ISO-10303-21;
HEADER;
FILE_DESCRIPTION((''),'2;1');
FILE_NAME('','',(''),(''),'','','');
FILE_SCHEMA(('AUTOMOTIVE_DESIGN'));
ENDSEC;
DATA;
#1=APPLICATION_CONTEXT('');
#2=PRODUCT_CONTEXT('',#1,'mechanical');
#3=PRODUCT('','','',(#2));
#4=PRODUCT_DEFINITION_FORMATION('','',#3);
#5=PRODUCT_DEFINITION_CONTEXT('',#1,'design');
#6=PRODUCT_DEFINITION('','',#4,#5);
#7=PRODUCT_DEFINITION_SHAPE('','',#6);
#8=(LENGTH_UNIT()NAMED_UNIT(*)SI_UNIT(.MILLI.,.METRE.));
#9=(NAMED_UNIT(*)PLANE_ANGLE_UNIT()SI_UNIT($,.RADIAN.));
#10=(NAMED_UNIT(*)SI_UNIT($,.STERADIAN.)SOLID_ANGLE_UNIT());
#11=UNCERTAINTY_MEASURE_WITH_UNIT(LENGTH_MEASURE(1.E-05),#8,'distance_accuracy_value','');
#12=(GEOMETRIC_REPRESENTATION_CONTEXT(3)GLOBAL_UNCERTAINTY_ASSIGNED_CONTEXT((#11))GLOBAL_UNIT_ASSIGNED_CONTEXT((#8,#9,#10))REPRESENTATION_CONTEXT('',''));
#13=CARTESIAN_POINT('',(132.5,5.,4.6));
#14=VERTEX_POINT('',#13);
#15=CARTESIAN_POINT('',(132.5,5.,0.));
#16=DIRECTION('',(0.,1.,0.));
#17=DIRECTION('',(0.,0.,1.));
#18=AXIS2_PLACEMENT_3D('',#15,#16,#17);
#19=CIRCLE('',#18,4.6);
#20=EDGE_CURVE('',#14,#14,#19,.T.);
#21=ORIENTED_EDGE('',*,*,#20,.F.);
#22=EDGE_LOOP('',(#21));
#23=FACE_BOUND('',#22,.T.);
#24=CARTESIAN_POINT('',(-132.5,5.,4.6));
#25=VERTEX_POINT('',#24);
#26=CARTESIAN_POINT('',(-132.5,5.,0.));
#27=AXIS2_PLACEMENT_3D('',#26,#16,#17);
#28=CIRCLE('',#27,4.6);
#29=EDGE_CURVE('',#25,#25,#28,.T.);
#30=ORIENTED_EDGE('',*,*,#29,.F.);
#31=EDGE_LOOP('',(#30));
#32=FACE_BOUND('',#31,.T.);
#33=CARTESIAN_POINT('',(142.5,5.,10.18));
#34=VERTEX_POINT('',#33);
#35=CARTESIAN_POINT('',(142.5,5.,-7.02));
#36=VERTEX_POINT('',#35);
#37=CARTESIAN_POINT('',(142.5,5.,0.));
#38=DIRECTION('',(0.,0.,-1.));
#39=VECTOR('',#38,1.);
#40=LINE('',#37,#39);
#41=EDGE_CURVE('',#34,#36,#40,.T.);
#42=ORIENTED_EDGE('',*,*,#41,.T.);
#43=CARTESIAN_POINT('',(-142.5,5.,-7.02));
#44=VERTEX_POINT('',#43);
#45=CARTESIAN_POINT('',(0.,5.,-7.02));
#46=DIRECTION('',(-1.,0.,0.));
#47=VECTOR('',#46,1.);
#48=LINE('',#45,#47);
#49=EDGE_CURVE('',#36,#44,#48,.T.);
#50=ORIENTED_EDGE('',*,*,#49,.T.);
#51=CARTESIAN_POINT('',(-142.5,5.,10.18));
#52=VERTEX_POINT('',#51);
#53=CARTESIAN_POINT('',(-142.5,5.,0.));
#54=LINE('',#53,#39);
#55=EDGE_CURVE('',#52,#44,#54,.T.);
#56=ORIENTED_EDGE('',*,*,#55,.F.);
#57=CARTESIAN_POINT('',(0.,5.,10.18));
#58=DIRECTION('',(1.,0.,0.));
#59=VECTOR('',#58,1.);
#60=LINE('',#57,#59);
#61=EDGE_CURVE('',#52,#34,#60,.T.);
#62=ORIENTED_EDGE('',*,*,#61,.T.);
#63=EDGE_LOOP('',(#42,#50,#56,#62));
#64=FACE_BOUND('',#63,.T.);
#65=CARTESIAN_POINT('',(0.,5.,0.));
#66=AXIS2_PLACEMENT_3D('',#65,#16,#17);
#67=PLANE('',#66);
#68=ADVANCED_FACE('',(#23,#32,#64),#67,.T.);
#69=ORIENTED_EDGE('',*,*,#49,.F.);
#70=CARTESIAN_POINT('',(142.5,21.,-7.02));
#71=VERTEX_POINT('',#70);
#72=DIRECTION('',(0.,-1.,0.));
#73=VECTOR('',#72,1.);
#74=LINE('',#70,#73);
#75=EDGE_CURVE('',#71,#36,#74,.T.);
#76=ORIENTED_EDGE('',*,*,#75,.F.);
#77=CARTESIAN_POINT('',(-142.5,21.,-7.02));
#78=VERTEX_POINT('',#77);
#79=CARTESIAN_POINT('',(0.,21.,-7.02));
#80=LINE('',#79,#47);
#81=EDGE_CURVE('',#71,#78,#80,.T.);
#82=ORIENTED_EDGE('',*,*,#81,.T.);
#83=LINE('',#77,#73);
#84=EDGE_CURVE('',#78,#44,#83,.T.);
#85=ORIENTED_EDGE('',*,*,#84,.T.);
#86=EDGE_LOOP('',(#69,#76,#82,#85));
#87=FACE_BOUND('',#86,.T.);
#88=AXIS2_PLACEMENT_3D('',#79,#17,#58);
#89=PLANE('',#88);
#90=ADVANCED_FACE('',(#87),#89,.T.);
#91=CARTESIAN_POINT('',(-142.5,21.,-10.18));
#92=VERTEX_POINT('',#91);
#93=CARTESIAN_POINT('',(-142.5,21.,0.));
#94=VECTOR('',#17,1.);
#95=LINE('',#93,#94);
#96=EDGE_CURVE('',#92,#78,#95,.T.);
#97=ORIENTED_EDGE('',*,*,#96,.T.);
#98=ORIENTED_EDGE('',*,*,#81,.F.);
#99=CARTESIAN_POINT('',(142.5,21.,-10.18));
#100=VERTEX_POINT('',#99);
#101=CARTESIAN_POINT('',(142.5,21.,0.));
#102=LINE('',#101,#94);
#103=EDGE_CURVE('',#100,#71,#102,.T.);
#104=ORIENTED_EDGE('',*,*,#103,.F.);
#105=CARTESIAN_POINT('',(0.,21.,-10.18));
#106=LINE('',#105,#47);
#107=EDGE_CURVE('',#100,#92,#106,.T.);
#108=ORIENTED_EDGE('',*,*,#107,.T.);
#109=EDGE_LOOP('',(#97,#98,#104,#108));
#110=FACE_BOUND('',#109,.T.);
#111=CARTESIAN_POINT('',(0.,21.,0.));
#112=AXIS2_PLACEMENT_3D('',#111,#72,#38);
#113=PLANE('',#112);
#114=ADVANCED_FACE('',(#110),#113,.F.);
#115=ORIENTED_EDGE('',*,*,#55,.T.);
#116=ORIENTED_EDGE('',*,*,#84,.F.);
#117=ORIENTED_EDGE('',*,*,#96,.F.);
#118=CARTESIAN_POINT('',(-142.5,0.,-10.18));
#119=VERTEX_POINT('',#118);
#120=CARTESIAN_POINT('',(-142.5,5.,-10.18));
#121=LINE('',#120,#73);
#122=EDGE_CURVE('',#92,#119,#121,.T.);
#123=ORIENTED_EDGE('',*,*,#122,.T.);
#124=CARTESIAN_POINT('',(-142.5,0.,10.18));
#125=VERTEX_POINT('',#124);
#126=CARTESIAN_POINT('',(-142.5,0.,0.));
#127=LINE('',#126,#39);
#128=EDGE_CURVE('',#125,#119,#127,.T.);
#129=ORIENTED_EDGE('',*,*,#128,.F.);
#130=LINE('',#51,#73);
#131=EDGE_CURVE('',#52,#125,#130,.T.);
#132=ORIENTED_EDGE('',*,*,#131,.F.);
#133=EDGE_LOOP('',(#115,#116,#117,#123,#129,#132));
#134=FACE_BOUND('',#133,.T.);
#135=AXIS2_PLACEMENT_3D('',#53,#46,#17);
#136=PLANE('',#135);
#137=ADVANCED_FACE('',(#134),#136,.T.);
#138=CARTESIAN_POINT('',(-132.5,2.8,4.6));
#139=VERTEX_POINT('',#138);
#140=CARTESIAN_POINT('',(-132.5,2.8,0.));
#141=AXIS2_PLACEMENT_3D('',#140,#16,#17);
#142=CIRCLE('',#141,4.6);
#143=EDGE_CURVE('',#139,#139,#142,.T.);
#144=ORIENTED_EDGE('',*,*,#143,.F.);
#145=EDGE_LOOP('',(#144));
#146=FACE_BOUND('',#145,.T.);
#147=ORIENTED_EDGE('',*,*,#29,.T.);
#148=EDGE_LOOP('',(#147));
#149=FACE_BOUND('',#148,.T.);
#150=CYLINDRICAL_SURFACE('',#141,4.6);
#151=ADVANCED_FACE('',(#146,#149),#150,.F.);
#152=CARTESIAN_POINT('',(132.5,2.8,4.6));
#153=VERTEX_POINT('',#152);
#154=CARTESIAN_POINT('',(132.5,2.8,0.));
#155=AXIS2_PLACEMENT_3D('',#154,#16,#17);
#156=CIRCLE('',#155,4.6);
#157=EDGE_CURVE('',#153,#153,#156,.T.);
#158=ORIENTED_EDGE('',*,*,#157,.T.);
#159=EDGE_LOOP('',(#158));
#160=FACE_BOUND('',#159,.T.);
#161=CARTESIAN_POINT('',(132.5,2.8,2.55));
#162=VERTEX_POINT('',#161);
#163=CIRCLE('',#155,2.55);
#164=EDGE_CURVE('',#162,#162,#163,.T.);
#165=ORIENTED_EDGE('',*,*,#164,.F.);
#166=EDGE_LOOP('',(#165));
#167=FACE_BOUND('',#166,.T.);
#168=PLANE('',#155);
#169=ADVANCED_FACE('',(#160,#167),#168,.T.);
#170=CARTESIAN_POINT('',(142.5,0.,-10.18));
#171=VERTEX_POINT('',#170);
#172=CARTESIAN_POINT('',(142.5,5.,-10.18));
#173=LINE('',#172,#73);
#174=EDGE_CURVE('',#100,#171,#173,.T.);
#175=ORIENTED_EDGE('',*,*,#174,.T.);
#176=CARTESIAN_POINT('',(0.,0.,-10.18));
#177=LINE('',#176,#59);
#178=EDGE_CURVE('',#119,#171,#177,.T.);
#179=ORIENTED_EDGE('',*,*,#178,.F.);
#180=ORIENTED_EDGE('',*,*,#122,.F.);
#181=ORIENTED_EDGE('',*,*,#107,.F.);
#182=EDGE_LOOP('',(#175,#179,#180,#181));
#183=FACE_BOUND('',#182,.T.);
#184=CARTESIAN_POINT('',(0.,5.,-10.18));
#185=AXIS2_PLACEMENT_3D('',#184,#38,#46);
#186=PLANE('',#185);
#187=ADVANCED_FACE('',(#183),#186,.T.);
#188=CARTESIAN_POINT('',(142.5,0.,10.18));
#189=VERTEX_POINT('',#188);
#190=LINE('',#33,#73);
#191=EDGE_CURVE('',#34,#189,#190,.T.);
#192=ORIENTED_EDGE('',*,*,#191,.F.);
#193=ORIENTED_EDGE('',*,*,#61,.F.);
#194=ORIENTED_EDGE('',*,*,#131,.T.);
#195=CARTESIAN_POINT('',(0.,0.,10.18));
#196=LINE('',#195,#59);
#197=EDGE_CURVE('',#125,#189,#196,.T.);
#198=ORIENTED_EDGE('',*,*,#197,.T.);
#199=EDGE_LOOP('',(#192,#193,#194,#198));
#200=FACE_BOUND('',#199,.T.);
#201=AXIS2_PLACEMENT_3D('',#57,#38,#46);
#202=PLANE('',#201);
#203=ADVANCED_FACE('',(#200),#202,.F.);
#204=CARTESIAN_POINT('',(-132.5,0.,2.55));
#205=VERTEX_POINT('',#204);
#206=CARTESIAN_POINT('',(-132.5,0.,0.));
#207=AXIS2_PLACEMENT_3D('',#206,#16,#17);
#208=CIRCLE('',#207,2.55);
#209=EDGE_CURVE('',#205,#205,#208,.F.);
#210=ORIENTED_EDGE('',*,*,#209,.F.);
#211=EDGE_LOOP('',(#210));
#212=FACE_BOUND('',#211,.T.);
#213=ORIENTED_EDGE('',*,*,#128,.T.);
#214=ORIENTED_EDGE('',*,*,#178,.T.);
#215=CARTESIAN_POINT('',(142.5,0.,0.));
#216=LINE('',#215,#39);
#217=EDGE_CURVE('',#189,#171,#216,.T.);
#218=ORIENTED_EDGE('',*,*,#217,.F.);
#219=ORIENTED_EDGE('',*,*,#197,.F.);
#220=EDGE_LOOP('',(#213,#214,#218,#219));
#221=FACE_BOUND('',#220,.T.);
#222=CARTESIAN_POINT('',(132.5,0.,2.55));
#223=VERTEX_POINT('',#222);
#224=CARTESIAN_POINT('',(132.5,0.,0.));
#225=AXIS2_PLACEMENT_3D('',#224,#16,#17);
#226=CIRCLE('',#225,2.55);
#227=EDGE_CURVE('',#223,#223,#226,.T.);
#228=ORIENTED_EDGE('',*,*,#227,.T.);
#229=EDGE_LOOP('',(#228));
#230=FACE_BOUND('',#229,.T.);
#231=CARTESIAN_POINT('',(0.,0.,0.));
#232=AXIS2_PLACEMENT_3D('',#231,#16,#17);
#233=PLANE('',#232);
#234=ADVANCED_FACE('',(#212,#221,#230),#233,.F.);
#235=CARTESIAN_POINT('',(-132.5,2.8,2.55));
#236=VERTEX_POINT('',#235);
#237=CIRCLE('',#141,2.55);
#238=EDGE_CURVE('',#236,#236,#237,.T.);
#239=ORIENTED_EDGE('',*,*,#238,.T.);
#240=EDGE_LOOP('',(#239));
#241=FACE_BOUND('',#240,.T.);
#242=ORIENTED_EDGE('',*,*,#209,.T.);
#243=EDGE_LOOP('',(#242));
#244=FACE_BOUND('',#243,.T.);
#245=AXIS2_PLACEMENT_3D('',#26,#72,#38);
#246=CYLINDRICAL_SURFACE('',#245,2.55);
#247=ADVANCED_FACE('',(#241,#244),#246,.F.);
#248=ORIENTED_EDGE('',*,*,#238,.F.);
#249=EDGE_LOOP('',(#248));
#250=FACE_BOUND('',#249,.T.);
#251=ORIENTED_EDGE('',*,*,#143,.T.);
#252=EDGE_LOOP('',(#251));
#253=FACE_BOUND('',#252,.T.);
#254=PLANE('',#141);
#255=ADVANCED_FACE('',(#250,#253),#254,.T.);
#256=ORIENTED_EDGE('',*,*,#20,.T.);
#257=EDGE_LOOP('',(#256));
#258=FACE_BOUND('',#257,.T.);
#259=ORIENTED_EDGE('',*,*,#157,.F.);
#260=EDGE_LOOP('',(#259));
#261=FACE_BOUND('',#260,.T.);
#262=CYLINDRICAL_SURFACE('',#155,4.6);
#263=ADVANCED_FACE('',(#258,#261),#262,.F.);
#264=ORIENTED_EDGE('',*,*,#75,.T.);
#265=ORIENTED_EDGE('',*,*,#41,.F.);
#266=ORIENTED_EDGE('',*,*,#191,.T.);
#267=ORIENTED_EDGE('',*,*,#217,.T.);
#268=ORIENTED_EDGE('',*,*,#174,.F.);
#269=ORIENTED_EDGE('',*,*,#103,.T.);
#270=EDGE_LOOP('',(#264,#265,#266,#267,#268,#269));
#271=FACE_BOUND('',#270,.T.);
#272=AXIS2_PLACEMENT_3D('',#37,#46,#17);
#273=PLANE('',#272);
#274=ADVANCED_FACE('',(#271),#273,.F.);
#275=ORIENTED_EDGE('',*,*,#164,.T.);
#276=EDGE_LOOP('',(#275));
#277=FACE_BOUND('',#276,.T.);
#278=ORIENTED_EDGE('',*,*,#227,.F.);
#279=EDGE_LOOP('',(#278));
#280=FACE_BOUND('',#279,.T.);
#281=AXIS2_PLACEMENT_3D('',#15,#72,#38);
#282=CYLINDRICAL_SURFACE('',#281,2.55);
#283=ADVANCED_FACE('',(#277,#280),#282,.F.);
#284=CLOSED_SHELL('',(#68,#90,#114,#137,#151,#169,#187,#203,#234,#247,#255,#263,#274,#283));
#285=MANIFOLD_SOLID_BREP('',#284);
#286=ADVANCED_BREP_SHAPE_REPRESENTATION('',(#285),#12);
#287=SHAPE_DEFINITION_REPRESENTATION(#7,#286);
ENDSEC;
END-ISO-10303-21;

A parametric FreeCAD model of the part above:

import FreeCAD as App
import Part
import Sketcher

doc = App.newDocument("Part")
params = doc.addObject("Spreadsheet::Sheet", "Params")
for row, (alias, value) in enumerate([
    ("sketch1_diameter", "5.1 mm"),
    ("sketch1_width", "285 mm"),
    ("sketch1_height", "20.36 mm"),
    ("pad1_length", "5 mm"),
    ("sketch2_width", "285 mm"),
    ("sketch2_height", "3.16 mm"),
    ("pad2_length", "16 mm"),
    ("sketch3_diameter", "9.2 mm"),
    ("sketch3_diameter2", "5.1 mm"),
    ("pocket1_length", "2.2 mm"),
], start=1):
    params.set(f"A{row}", alias)
    params.set(f"B{row}", "=" + value)
    params.setAlias(f"B{row}", alias)

body = doc.addObject("PartDesign::Body", "Body")

sketch1 = body.newObject("Sketcher::SketchObject", "Sketch")
sketch1.AttachmentSupport = (doc.getObject("XZ_Plane"), [""])
sketch1.MapMode = "FlatFace"
sketch1.addGeometry([
    Part.LineSegment(App.Vector(-142.5, 10.2, 0), App.Vector(142.5, 10.2, 0)),
    Part.LineSegment(App.Vector(142.5, 10.2, 0), App.Vector(142.5, -10.2, 0)),
    Part.LineSegment(App.Vector(142.5, -10.2, 0), App.Vector(-142.5, -10.2, 0)),
    Part.LineSegment(App.Vector(-142.5, -10.2, 0), App.Vector(-142.5, 10.2, 0)),
    Part.Circle(App.Vector(-132.5, 0, 0), App.Vector(0, 0, 1), 2.5),
    Part.Circle(App.Vector(132.5, 0, 0), App.Vector(0, 0, 1), 2.5),
], False)
sketch1.addConstraint([
    Sketcher.Constraint("Coincident", 0, 2, 1, 1),
    Sketcher.Constraint("Coincident", 1, 2, 2, 1),
    Sketcher.Constraint("Coincident", 2, 2, 3, 1),
    Sketcher.Constraint("Coincident", 3, 2, 0, 1),
    Sketcher.Constraint("Horizontal", 0),
    Sketcher.Constraint("Vertical", 1),
    Sketcher.Constraint("Horizontal", 2),
    Sketcher.Constraint("Vertical", 3),
    Sketcher.Constraint("Equal", 4, 5),
    Sketcher.Constraint("Symmetric", 4, 3, 5, 3, -1, 1),
    Sketcher.Constraint("Symmetric", 0, 2, 2, 2, -1, 1),
    Sketcher.Constraint("PointOnObject", 4, 3, -1),
    Sketcher.Constraint("Diameter", 4, 5.1),
    Sketcher.Constraint("DistanceX", 0, 1, 0, 2, 285.0),
    Sketcher.Constraint("DistanceX", 4, 3, 5, 3, 265.0),
    Sketcher.Constraint("DistanceY", 1, 2, 1, 1, 20.36),
])
sketch1.setExpression("Constraints[12]", "Params.sketch1_diameter")
sketch1.setExpression("Constraints[13]", "Params.sketch1_width")
sketch1.setExpression("Constraints[15]", "Params.sketch1_height")
pad1 = body.newObject("PartDesign::Pad", "Pad")
pad1.Profile = sketch1
pad1.setExpression("Length", "Params.pad1_length")
pad1.Reversed = True

sketch2 = body.newObject("Sketcher::SketchObject", "Sketch001")
sketch2.AttachmentSupport = (doc.getObject("XZ_Plane"), [""])
sketch2.MapMode = "FlatFace"
sketch2.AttachmentOffset = App.Placement(App.Vector(0, 0, -5), App.Rotation())
sketch2.addGeometry([
    Part.LineSegment(App.Vector(-142.5, -10.2, 0), App.Vector(-142.5, -7, 0)),
    Part.LineSegment(App.Vector(-142.5, -7, 0), App.Vector(142.5, -7, 0)),
    Part.LineSegment(App.Vector(142.5, -7, 0), App.Vector(142.5, -10.2, 0)),
    Part.LineSegment(App.Vector(142.5, -10.2, 0), App.Vector(-142.5, -10.2, 0)),
], False)
sketch2.addConstraint([
    Sketcher.Constraint("Coincident", 0, 2, 1, 1),
    Sketcher.Constraint("Coincident", 1, 2, 2, 1),
    Sketcher.Constraint("Coincident", 2, 2, 3, 1),
    Sketcher.Constraint("Coincident", 3, 2, 0, 1),
    Sketcher.Constraint("Vertical", 0),
    Sketcher.Constraint("Horizontal", 1),
    Sketcher.Constraint("Vertical", 2),
    Sketcher.Constraint("Horizontal", 3),
    Sketcher.Constraint("DistanceX", 1, 1, 1, 2, 285.0),
    Sketcher.Constraint("DistanceY", 0, 1, 0, 2, 3.16),
    Sketcher.Constraint("DistanceX", 0, 2, -1, 1, 142.5),
    Sketcher.Constraint("DistanceY", 0, 2, -1, 1, 7.02),
])
sketch2.setExpression("Constraints[8]", "Params.sketch2_width")
sketch2.setExpression("Constraints[9]", "Params.sketch2_height")
pad2 = body.newObject("PartDesign::Pad", "Pad001")
pad2.Profile = sketch2
pad2.setExpression("Length", "Params.pad2_length")
pad2.Reversed = True

sketch3 = body.newObject("Sketcher::SketchObject", "Sketch002")
sketch3.AttachmentSupport = (doc.getObject("XZ_Plane"), [""])
sketch3.MapMode = "FlatFace"
sketch3.AttachmentOffset = App.Placement(App.Vector(0, 0, -2.8), App.Rotation())
sketch3.addGeometry([
    Part.Circle(App.Vector(-132.5, 0, 0), App.Vector(0, 0, 1), 4.6),
    Part.Circle(App.Vector(-132.5, 0, 0), App.Vector(0, 0, 1), 2.5),
    Part.Circle(App.Vector(132.5, 0, 0), App.Vector(0, 0, 1), 4.6),
    Part.Circle(App.Vector(132.5, 0, 0), App.Vector(0, 0, 1), 2.5),
], False)
sketch3.addConstraint([
    Sketcher.Constraint("Coincident", 1, 3, 0, 3),
    Sketcher.Constraint("Coincident", 3, 3, 2, 3),
    Sketcher.Constraint("Equal", 0, 2),
    Sketcher.Constraint("Equal", 1, 3),
    Sketcher.Constraint("Symmetric", 0, 3, 2, 3, -1, 1),
    Sketcher.Constraint("PointOnObject", 0, 3, -1),
    Sketcher.Constraint("Diameter", 0, 9.2),
    Sketcher.Constraint("Diameter", 1, 5.1),
    Sketcher.Constraint("DistanceX", 0, 3, 2, 3, 265.0),
])
sketch3.setExpression("Constraints[6]", "Params.sketch3_diameter")
sketch3.setExpression("Constraints[7]", "Params.sketch3_diameter2")
pocket1 = body.newObject("PartDesign::Pocket", "Pocket")
pocket1.Profile = sketch3
pocket1.setExpression("Length", "Params.pocket1_length")

doc.recompute()
